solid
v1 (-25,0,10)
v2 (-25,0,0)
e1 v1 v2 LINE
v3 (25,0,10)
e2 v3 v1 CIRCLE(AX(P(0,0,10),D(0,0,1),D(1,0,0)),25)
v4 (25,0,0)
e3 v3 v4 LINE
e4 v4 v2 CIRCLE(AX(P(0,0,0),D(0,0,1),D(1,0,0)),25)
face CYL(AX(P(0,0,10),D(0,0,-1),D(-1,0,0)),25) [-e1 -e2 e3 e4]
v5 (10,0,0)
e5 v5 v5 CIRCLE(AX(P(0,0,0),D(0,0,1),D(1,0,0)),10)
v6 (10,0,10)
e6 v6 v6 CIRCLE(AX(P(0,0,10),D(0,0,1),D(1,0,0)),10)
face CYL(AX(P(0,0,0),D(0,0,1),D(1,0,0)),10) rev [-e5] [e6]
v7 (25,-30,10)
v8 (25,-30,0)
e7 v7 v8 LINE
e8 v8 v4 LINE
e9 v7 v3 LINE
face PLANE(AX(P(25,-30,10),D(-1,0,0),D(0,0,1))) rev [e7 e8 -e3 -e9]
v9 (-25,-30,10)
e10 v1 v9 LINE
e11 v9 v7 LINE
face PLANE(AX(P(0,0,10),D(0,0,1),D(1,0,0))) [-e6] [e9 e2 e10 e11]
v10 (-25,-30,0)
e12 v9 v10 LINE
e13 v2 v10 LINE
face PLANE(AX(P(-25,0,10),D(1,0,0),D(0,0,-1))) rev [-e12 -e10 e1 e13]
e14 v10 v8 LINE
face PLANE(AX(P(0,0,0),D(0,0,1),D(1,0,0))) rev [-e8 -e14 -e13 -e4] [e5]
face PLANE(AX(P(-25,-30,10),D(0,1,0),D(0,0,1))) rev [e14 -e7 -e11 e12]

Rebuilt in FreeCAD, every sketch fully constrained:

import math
import FreeCAD as App
import Part
import Sketcher

doc = App.newDocument("Part")
body = doc.addObject("PartDesign::Body", "Body")

sketch1 = body.newObject("Sketcher::SketchObject", "Sketch")
sketch1.AttachmentSupport = (doc.getObject("XY_Plane"), [""])
sketch1.MapMode = "FlatFace"
sketch1.addGeometry([
    Part.LineSegment(App.Vector(-25, 0, 0), App.Vector(-25, -30, 0)),
    Part.LineSegment(App.Vector(-25, -30, 0), App.Vector(25, -30, 0)),
    Part.LineSegment(App.Vector(25, -30, 0), App.Vector(25, 0, 0)),
    Part.ArcOfCircle(Part.Circle(App.Vector(0, 0, 0), App.Vector(0, 0, 1), 25), math.radians(0), math.radians(180)),
], False)
sketch1.addConstraint([
    Sketcher.Constraint("Coincident", 0, 2, 1, 1),
    Sketcher.Constraint("Coincident", 1, 2, 2, 1),
    Sketcher.Constraint("Tangent", 2, 2, 3, 1),
    Sketcher.Constraint("Tangent", 3, 2, 0, 1),
    Sketcher.Constraint("Vertical", 0),
    Sketcher.Constraint("Horizontal", 1),
    Sketcher.Constraint("Vertical", 2),
    Sketcher.Constraint("Coincident", 3, 3, -1, 1),
    Sketcher.Constraint("Radius", 3, 25.0),
    Sketcher.Constraint("DistanceY", 0, 2, 0, 1, 30.0),
])
pad1 = body.newObject("PartDesign::Pad", "Pad")
pad1.Profile = sketch1
pad1.Length = 10

sketch2 = body.newObject("Sketcher::SketchObject", "Sketch001")
sketch2.AttachmentSupport = (doc.getObject("XY_Plane"), [""])
sketch2.MapMode = "FlatFace"
sketch2.AttachmentOffset = App.Placement(App.Vector(0, 0, 10), App.Rotation())
sketch2.addGeometry(Part.Circle(App.Vector(0, 0, 0), App.Vector(0, 0, 1), 10), False)
sketch2.addConstraint([
    Sketcher.Constraint("Coincident", 0, 3, -1, 1),
    Sketcher.Constraint("Diameter", 0, 20.0),
])
pocket1 = body.newObject("PartDesign::Pocket", "Pocket")
pocket1.Profile = sketch2
pocket1.Length = 10

doc.recompute()
